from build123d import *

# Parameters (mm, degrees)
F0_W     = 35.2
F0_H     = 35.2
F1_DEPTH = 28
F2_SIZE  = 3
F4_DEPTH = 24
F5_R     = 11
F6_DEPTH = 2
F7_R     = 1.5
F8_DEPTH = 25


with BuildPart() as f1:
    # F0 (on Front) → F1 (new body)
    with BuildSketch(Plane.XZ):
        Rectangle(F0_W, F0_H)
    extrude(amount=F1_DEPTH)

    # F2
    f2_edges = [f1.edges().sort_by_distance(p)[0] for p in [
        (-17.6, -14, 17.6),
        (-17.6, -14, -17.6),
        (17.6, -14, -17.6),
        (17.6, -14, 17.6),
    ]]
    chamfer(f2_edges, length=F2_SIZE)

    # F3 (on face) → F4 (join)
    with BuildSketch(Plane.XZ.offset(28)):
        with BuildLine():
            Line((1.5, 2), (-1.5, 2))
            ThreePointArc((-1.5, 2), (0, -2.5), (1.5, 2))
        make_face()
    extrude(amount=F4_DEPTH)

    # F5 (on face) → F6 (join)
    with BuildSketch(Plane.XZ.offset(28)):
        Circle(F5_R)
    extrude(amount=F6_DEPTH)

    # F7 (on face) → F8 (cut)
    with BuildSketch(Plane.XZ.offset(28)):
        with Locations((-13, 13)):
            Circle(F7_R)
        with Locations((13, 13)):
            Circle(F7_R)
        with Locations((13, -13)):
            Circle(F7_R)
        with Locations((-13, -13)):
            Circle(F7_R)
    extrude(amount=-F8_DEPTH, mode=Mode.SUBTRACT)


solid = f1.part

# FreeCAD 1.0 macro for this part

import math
import FreeCAD as App
import Part
import Sketcher


def edges_at(feature, points):
    """Names of the edges that pass closest to the given points."""
    edges = feature.Shape.Edges
    near = lambda p: min(range(len(edges)), key=lambda i: edges[i].distToShape(Part.Vertex(*p))[0])
    return sorted({f"Edge{near(p) + 1}" for p in points})


def add_polygon(sketch, points):
    """Adds a closed chain of lines whose ends are joined by coincident constraints."""
    first, n = sketch.GeometryCount, len(points)
    for a, b in zip(points, points[1:] + points[:1]):
        sketch.addGeometry(Part.LineSegment(App.Vector(*a, 0), App.Vector(*b, 0)), False)
    for i in range(n):
        sketch.addConstraint(Sketcher.Constraint("Coincident", first + i, 2, first + (i + 1) % n, 1))

doc = App.newDocument("Part")
body = doc.addObject("PartDesign::Body", "Body")

# Sketch on XZ plane
sketch1 = body.newObject("Sketcher::SketchObject", "Sketch")
sketch1.AttachmentSupport = (doc.getObject("XZ_Plane"), [""])
sketch1.MapMode = "FlatFace"
add_polygon(sketch1, [(-17.6, 17.6), (-17.6, -17.6), (17.6, -17.6), (17.6, 17.6)])  # lines 0-3
sketch1.addConstraint([
    Sketcher.Constraint("Vertical", 0),
    Sketcher.Constraint("Horizontal", 1),
    Sketcher.Constraint("Vertical", 2),
    Sketcher.Constraint("Horizontal", 3),
    Sketcher.Constraint("Symmetric", 0, 2, 2, 2, -1, 1),
    Sketcher.Constraint("Equal", 3, 0),
    Sketcher.Constraint("DistanceX", 1, 1, 1, 2, 35.2),
])
pad1 = body.newObject("PartDesign::Pad", "Pad")
pad1.Profile = sketch1
pad1.Length = 28
doc.recompute()

chamfer = body.newObject("PartDesign::Chamfer", "Chamfer")
chamfer.Base = (pad1, edges_at(pad1, [
    (-17.6, -14, 17.6),
    (-17.6, -14, -17.6),
    (17.6, -14, -17.6),
    (17.6, -14, 17.6),
]))
chamfer.Size = 3

# Sketch on XZ plane
sketch2 = body.newObject("Sketcher::SketchObject", "Sketch001")
sketch2.AttachmentSupport = (doc.getObject("XZ_Plane"), [""])
sketch2.MapMode = "FlatFace"
sketch2.AttachmentOffset = App.Placement(App.Vector(0, 0, 28), App.Rotation())
sketch2.addGeometry([
    Part.LineSegment(App.Vector(1.5, 2, 0), App.Vector(-1.5, 2, 0)),
    Part.ArcOfCircle(Part.Circle(App.Vector(0, 0, 0), App.Vector(0, 0, 1), 2.5), math.radians(126.869898), math.radians(413.130102)),
], False)
sketch2.addConstraint([
    Sketcher.Constraint("Coincident", 0, 1, 1, 2),
    Sketcher.Constraint("Coincident", 1, 1, 0, 2),
    Sketcher.Constraint("Horizontal", 0),
    Sketcher.Constraint("Coincident", 1, 3, -1, 1),
    Sketcher.Constraint("Radius", 1, 2.5),
    Sketcher.Constraint("DistanceX", 0, 2, 0, 1, 3.0),
])
pad2 = body.newObject("PartDesign::Pad", "Pad001")
pad2.Profile = sketch2
pad2.Length = 24

# Sketch on XZ plane
sketch3 = body.newObject("Sketcher::SketchObject", "Sketch002")
sketch3.AttachmentSupport = (doc.getObject("XZ_Plane"), [""])
sketch3.MapMode = "FlatFace"
sketch3.AttachmentOffset = App.Placement(App.Vector(0, 0, 28), App.Rotation())
sketch3.addGeometry(Part.Circle(App.Vector(0, 0, 0), App.Vector(0, 0, 1), 11), False)
sketch3.addConstraint([
    Sketcher.Constraint("Coincident", 0, 3, -1, 1),
    Sketcher.Constraint("Diameter", 0, 22.0),
])
pad3 = body.newObject("PartDesign::Pad", "Pad002")
pad3.Profile = sketch3
pad3.Length = 2

# Sketch on XZ plane
sketch4 = body.newObject("Sketcher::SketchObject", "Sketch003")
sketch4.AttachmentSupport = (doc.getObject("XZ_Plane"), [""])
sketch4.MapMode = "FlatFace"
sketch4.AttachmentOffset = App.Placement(App.Vector(0, 0, 28), App.Rotation())
sketch4.addGeometry([
    Part.Circle(App.Vector(-13, 13, 0), App.Vector(0, 0, 1), 1.5),
    Part.Circle(App.Vector(13, 13, 0), App.Vector(0, 0, 1), 1.5),
    Part.Circle(App.Vector(13, -13, 0), App.Vector(0, 0, 1), 1.5),
    Part.Circle(App.Vector(-13, -13, 0), App.Vector(0, 0, 1), 1.5),
], False)
sketch4.addConstraint([
    Sketcher.Constraint("Equal", 0, 1),
    Sketcher.Constraint("Equal", 1, 2),
    Sketcher.Constraint("Equal", 2, 3),
    Sketcher.Constraint("Symmetric", 0, 3, 2, 3, -1, 1),
    Sketcher.Constraint("Symmetric", 1, 3, 3, 3, -1, 1),
    Sketcher.Constraint("Symmetric", 0, 3, 1, 3, -2),
    Sketcher.Constraint("Diameter", 0, 3.0),
    Sketcher.Constraint("DistanceX", 0, 3, -1, 1, 13.0),
    Sketcher.Constraint("DistanceY", -1, 1, 0, 3, 13.0),
])
pocket1 = body.newObject("PartDesign::Pocket", "Pocket")
pocket1.Profile = sketch4
pocket1.Length = 25

doc.recompute()
